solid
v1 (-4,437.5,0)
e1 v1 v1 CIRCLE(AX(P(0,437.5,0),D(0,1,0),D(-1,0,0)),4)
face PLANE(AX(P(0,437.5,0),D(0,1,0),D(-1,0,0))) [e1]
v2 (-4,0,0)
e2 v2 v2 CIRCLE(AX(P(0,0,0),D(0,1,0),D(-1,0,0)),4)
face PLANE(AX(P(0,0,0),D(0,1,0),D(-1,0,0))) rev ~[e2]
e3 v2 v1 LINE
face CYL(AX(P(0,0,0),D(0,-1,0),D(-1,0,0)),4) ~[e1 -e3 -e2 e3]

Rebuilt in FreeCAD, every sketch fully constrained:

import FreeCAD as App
import Part
import Sketcher

V = App.Vector
Q = App.Units.Quantity

doc = App.newDocument("Part")
body = doc.addObject("PartDesign::Body", "Body")

# Sketch on XZ plane
sketch1 = doc.addObject("Sketcher::SketchObject", "Sketch")
body.addObject(sketch1)
sketch1.AttachmentSupport = (doc.XZ_Plane, [""])
sketch1.MapMode = "FlatFace"
sketch1.addGeometry(Part.Circle(V(0, 0, 0), V(0, 0, 1), 4), False)
sketch1.addConstraint([
    Sketcher.Constraint("Coincident", 0, 3, -1, 1),
    Sketcher.Constraint("Diameter", 0, Q("8 mm")),
])
pad1 = doc.addObject("PartDesign::Pad", "Pad")
body.addObject(pad1)
pad1.Profile = sketch1
pad1.Length = 437.5
pad1.Reversed = True

doc.recompute()
